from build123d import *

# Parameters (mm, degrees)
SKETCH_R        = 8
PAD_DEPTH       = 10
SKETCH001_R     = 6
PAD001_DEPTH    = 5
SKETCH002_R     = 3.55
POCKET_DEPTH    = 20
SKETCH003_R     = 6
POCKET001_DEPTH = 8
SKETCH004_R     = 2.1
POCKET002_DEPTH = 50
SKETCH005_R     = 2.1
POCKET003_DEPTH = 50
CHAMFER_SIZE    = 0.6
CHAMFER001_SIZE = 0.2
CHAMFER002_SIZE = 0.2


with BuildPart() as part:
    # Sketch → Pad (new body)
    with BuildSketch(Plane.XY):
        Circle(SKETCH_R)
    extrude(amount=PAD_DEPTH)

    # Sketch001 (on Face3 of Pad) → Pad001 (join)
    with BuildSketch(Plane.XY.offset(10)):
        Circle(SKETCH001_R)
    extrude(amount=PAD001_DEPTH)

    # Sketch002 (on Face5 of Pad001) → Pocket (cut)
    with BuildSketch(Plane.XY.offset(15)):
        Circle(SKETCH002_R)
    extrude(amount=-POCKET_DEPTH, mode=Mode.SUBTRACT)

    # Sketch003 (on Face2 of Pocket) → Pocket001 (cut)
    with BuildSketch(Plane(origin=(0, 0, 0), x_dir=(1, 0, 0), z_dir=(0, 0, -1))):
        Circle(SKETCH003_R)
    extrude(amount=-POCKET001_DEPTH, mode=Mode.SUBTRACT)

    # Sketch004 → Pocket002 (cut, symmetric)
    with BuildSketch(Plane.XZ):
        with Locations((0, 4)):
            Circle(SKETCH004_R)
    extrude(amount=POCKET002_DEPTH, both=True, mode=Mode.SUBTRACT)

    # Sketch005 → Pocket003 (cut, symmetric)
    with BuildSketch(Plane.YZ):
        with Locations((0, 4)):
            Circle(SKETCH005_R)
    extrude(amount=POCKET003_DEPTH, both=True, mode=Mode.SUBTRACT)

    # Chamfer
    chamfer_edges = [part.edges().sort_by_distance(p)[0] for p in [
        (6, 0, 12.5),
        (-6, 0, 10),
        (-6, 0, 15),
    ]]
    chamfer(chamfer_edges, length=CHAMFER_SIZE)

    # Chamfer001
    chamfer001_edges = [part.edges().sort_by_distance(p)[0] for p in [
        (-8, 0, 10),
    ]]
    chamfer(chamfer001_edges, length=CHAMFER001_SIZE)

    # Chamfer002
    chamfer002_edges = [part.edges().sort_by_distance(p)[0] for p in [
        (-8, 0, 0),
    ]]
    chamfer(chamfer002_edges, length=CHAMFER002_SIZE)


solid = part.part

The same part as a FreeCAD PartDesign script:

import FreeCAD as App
import Part
import Sketcher
from FreeCAD import Vector
Q = App.Units.Quantity


def edges_at(feature, points):
    """Names of the edges that pass closest to the given points."""
    edges = feature.Shape.Edges
    near = lambda p: min(range(len(edges)), key=lambda i: edges[i].distToShape(Part.Vertex(*p))[0])
    return sorted({f"Edge{near(p) + 1}" for p in points})

doc = App.newDocument("Part")
params = doc.addObject("Spreadsheet::Sheet", "Params")
for row, (alias, value) in enumerate([
    ("sketch1_diameter", "16 mm"),
    ("pad1_length", "10 mm"),
    ("sketch2_diameter", "12 mm"),
    ("pad2_length", "5 mm"),
    ("sketch3_diameter", "7.1 mm"),
    ("pocket1_length", "20 mm"),
    ("sketch4_diameter", "12 mm"),
    ("pocket2_length", "8 mm"),
    ("sketch5_diameter", "4.2 mm"),
    ("pocket3_length", "100 mm"),
    ("sketch6_diameter", "4.2 mm"),
    ("pocket4_length", "100 mm"),
    ("chamfer_size", "0.6 mm"),
    ("chamfer2_size", "0.2 mm"),
    ("chamfer3_size", "0.2 mm"),
], start=1):
    params.set(f"A{row}", alias)
    params.set(f"B{row}", "=" + value)
    params.setAlias(f"B{row}", alias)

body = doc.addObject("PartDesign::Body", "Body")

sketch1 = body.newObject("Sketcher::SketchObject", "Sketch")
sketch1.AttachmentSupport = (doc.getObject("XY_Plane"), [""])
sketch1.MapMode = "FlatFace"
sketch1.addGeometry(Part.Circle(Vector(0, 0, 0), Vector(0, 0, 1), 8), False)
sketch1.addConstraint(Sketcher.Constraint("Coincident", 0, 3, -1, 1))
sketch1.addConstraint(Sketcher.Constraint("Diameter", 0, Q("16 mm")))
sketch1.setExpression("Constraints[1]", "Params.sketch1_diameter")
pad1 = body.newObject("PartDesign::Pad", "Pad")
pad1.Profile = sketch1
pad1.setExpression("Length", "Params.pad1_length")

sketch2 = body.newObject("Sketcher::SketchObject", "Sketch001")
sketch2.AttachmentSupport = (doc.getObject("XY_Plane"), [""])
sketch2.MapMode = "FlatFace"
sketch2.AttachmentOffset = App.Placement(Vector(0, 0, 10), App.Rotation())
sketch2.addGeometry(Part.Circle(Vector(0, 0, 0), Vector(0, 0, 1), 6), False)
sketch2.addConstraint(Sketcher.Constraint("Coincident", 0, 3, -1, 1))
sketch2.addConstraint(Sketcher.Constraint("Diameter", 0, Q("12 mm")))
sketch2.setExpression("Constraints[1]", "Params.sketch2_diameter")
pad2 = body.newObject("PartDesign::Pad", "Pad001")
pad2.Profile = sketch2
pad2.setExpression("Length", "Params.pad2_length")

sketch3 = body.newObject("Sketcher::SketchObject", "Sketch002")
sketch3.AttachmentSupport = (doc.getObject("XY_Plane"), [""])
sketch3.MapMode = "FlatFace"
sketch3.AttachmentOffset = App.Placement(Vector(0, 0, 15), App.Rotation())
sketch3.addGeometry(Part.Circle(Vector(0, 0, 0), Vector(0, 0, 1), 3.55), False)
sketch3.addConstraint(Sketcher.Constraint("Coincident", 0, 3, -1, 1))
sketch3.addConstraint(Sketcher.Constraint("Diameter", 0, Q("7.1 mm")))
sketch3.setExpression("Constraints[1]", "Params.sketch3_diameter")
pocket1 = body.newObject("PartDesign::Pocket", "Pocket")
pocket1.Profile = sketch3
pocket1.setExpression("Length", "Params.pocket1_length")

sketch4 = body.newObject("Sketcher::SketchObject", "Sketch003")
sketch4.AttachmentSupport = (doc.getObject("XY_Plane"), [""])
sketch4.MapMode = "FlatFace"
sketch4.addGeometry(Part.Circle(Vector(0, 0, 0), Vector(0, 0, 1), 6), False)
sketch4.addConstraint(Sketcher.Constraint("Coincident", 0, 3, -1, 1))
sketch4.addConstraint(Sketcher.Constraint("Diameter", 0, Q("12 mm")))
sketch4.setExpression("Constraints[1]", "Params.sketch4_diameter")
pocket2 = body.newObject("PartDesign::Pocket", "Pocket001")
pocket2.Profile = sketch4
pocket2.setExpression("Length", "Params.pocket2_length")
pocket2.Reversed = True

sketch5 = body.newObject("Sketcher::SketchObject", "Sketch004")
sketch5.AttachmentSupport = (doc.getObject("XZ_Plane"), [""])
sketch5.MapMode = "FlatFace"
sketch5.addGeometry(Part.Circle(Vector(0, 4, 0), Vector(0, 0, 1), 2.1), False)
sketch5.addConstraint(Sketcher.Constraint("PointOnObject", 0, 3, -2))
sketch5.addConstraint(Sketcher.Constraint("Diameter", 0, Q("4.2 mm")))
sketch5.addConstraint(Sketcher.Constraint("DistanceY", -1, 1, 0, 3, Q("4 mm")))
sketch5.setExpression("Constraints[1]", "Params.sketch5_diameter")
pocket3 = body.newObject("PartDesign::Pocket", "Pocket002")
pocket3.Profile = sketch5
pocket3.setExpression("Length", "Params.pocket3_length")
pocket3.Midplane = True

sketch6 = body.newObject("Sketcher::SketchObject", "Sketch005")
sketch6.AttachmentSupport = (doc.getObject("YZ_Plane"), [""])
sketch6.MapMode = "FlatFace"
sketch6.addGeometry(Part.Circle(Vector(0, 4, 0), Vector(0, 0, 1), 2.1), False)
sketch6.addConstraint(Sketcher.Constraint("PointOnObject", 0, 3, -2))
sketch6.addConstraint(Sketcher.Constraint("Diameter", 0, Q("4.2 mm")))
sketch6.addConstraint(Sketcher.Constraint("DistanceY", -1, 1, 0, 3, Q("4 mm")))
sketch6.setExpression("Constraints[1]", "Params.sketch6_diameter")
pocket4 = body.newObject("PartDesign::Pocket", "Pocket003")
pocket4.Profile = sketch6
pocket4.setExpression("Length", "Params.pocket4_length")
pocket4.Midplane = True
doc.recompute()

chamfer = body.newObject("PartDesign::Chamfer", "Chamfer")
chamfer.Base = (pocket4, edges_at(pocket4, [(6, 0, 12.5), (-6, 0, 10), (-6, 0, 15)]))
chamfer.setExpression("Size", "Params.chamfer_size")
doc.recompute()

chamfer2 = body.newObject("PartDesign::Chamfer", "Chamfer001")
chamfer2.Base = (chamfer, edges_at(chamfer, [(-8, 0, 10)]))
chamfer2.setExpression("Size", "Params.chamfer2_size")
doc.recompute()

chamfer3 = body.newObject("PartDesign::Chamfer", "Chamfer002")
chamfer3.Base = (chamfer2, edges_at(chamfer2, [(-8, 0, 0)]))
chamfer3.setExpression("Size", "Params.chamfer3_size")

doc.recompute()
